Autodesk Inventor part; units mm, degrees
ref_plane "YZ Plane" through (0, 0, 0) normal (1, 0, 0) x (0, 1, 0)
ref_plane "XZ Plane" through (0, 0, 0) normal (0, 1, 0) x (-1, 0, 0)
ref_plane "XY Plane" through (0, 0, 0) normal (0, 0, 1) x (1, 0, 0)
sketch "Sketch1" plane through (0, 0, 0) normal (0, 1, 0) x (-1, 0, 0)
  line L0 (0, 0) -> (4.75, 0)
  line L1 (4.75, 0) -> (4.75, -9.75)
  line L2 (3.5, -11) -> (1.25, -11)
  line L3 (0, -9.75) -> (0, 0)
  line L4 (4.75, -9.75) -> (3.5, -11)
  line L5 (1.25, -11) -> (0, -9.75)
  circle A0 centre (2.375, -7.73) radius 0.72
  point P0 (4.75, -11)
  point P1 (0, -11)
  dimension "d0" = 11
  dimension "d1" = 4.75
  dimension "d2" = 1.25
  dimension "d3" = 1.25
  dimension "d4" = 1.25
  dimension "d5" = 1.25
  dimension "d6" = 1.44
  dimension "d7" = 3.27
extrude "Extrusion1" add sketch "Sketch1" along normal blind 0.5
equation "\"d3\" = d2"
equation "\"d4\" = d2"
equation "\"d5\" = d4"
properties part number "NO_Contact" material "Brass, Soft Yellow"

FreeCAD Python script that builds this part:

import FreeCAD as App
import Part
import Sketcher

V = App.Vector

doc = App.newDocument("Part")
params = doc.addObject("Spreadsheet::Sheet", "Params")
for row, (alias, value) in enumerate([
    ("sketch1_diameter", "1.44 mm"),
    ("sketch1_width", "4.75 mm"),
    ("pad1_length", "0.5 mm"),
], start=1):
    params.set(f"A{row}", alias)
    params.set(f"B{row}", "=" + value)
    params.setAlias(f"B{row}", alias)

body = doc.addObject("PartDesign::Body", "Body")

# Sketch on XZ plane
sketch1 = doc.addObject("Sketcher::SketchObject", "Sketch")
body.addObject(sketch1)
sketch1.AttachmentSupport = (doc.XZ_Plane, [""])
sketch1.MapMode = "FlatFace"
sketch1.addGeometry([
    Part.LineSegment(V(-4.8, 0, 0), V(0, 0, 0)),  # 0
    Part.LineSegment(V(0, 0, 0), V(0, -9.8, 0)),  # 1
    Part.LineSegment(V(0, -9.8, 0), V(-1.2, -11, 0)),  # 2
    Part.LineSegment(V(-1.2, -11, 0), V(-3.5, -11, 0)),  # 3
    Part.LineSegment(V(-3.5, -11, 0), V(-4.8, -9.8, 0)),  # 4
    Part.LineSegment(V(-4.8, -9.8, 0), V(-4.8, 0, 0)),  # 5
    Part.Circle(V(-2.4, -7.7, 0), V(0, 0, 1), 0.7),  # 6
], False)
sketch1.addConstraint([
    Sketcher.Constraint("Coincident", 0, 2, 1, 1),
    Sketcher.Constraint("Coincident", 1, 2, 2, 1),
    Sketcher.Constraint("Coincident", 2, 2, 3, 1),
    Sketcher.Constraint("Coincident", 3, 2, 4, 1),
    Sketcher.Constraint("Coincident", 4, 2, 5, 1),
    Sketcher.Constraint("Coincident", 5, 2, 0, 1),
    Sketcher.Constraint("Horizontal", 0),
    Sketcher.Constraint("Vertical", 1),
    Sketcher.Constraint("Horizontal", 3),
    Sketcher.Constraint("Vertical", 5),
    Sketcher.Constraint("Coincident", 0, 2, -1, 1),
    Sketcher.Constraint("Perpendicular", 2, 4),
    Sketcher.Constraint("Horizontal", 1, 2, 4, 2),
    Sketcher.Constraint("Equal", 2, 4),
    Sketcher.Constraint("Diameter", 6, 1.44),
    Sketcher.Constraint("DistanceY", 2, 2, -1, 1, 11.0),
    Sketcher.Constraint("DistanceX", 0, 1, 0, 2, 4.75),
    Sketcher.Constraint("DistanceX", 2, 2, -1, 1, 1.25),
    Sketcher.Constraint("DistanceY", 2, 2, 6, 3, 3.27),
    Sketcher.Constraint("DistanceX", 6, 3, -1, 1, 2.375),
])
sketch1.setExpression("Constraints[14]", "Params.sketch1_diameter")
sketch1.setExpression("Constraints[16]", "Params.sketch1_width")
pad1 = doc.addObject("PartDesign::Pad", "Pad")
body.addObject(pad1)
pad1.Profile = sketch1
pad1.setExpression("Length", "Params.pad1_length")
pad1.Reversed = True

doc.recompute()
